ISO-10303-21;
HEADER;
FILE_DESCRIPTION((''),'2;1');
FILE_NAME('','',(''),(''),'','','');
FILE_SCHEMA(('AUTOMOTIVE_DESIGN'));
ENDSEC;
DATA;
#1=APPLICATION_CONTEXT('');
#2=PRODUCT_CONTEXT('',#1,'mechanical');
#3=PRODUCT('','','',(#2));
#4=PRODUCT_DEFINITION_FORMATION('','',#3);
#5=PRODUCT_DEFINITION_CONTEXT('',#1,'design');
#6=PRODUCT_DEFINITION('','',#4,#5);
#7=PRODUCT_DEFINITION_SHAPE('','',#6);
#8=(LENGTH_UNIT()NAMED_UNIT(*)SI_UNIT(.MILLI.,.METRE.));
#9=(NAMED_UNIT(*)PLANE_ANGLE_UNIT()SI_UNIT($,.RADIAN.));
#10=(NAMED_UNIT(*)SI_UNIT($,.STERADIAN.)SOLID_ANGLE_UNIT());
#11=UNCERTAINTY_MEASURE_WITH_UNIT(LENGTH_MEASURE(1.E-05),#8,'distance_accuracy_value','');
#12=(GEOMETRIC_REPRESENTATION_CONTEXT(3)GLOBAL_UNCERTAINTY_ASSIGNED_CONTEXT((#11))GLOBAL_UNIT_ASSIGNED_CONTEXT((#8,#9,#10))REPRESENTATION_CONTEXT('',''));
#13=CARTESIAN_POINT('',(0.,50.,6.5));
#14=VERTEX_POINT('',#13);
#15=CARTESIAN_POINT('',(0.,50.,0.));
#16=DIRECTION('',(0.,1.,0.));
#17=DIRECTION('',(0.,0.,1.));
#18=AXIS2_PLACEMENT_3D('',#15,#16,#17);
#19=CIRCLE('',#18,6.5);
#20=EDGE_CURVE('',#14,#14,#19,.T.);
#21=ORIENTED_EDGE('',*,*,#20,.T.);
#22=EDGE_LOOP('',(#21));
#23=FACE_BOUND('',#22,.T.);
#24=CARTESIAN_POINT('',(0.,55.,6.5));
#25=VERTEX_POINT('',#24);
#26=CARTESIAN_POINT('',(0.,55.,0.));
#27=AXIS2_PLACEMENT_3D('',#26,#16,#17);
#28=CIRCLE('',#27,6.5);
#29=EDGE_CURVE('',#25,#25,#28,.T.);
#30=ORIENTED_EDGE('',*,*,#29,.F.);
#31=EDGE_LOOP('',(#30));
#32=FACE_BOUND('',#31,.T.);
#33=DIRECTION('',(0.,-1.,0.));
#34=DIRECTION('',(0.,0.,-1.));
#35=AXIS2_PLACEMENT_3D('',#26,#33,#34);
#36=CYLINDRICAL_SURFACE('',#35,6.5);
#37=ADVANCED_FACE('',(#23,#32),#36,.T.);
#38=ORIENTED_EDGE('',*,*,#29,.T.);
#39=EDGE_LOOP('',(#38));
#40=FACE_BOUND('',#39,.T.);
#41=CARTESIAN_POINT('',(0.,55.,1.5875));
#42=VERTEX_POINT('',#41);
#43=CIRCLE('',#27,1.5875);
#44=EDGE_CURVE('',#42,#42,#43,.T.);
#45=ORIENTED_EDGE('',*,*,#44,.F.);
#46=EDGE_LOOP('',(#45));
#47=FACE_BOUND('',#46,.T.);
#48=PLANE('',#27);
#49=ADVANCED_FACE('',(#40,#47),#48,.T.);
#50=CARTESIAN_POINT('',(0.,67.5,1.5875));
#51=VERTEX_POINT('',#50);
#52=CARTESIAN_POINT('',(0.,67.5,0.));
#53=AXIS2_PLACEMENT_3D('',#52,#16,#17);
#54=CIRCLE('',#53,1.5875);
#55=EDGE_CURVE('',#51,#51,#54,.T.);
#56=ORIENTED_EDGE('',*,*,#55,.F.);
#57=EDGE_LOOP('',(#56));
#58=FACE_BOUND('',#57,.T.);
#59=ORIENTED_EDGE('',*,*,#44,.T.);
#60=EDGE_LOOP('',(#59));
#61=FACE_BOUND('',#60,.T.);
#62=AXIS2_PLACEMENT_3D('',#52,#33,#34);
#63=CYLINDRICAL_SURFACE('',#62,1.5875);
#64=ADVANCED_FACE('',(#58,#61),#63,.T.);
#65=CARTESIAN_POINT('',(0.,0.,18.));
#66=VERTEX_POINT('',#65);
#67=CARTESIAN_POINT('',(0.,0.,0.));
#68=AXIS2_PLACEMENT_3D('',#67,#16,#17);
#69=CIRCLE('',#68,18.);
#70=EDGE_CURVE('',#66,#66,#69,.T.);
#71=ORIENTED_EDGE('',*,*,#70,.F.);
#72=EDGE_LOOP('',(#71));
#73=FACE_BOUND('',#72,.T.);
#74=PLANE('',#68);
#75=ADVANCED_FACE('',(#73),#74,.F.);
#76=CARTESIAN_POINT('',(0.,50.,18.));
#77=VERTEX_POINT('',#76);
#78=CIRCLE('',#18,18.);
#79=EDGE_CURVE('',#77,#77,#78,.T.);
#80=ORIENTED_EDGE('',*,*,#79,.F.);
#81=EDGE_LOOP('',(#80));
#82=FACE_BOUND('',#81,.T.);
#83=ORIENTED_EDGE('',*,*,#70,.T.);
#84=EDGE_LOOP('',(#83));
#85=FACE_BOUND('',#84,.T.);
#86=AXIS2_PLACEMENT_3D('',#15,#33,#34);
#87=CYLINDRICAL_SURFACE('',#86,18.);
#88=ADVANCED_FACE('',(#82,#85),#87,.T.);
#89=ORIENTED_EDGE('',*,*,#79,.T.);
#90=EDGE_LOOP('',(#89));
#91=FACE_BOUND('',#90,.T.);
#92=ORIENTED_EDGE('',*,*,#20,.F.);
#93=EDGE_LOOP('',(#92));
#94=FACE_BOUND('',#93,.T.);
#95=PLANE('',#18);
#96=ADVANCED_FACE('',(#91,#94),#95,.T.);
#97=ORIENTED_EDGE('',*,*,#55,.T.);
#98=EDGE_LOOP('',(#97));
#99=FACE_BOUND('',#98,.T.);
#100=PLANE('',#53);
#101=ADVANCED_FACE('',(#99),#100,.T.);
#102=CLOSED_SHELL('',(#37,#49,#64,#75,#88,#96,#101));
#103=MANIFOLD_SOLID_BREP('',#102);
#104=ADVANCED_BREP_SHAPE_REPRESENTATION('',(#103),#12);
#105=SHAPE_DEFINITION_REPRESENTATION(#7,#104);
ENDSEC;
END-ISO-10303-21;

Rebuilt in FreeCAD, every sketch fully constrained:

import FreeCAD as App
import Part
import Sketcher
from FreeCAD import Vector

doc = App.newDocument("Part")
body = doc.addObject("PartDesign::Body", "Body")

# Sketch on XZ plane
sketch1 = body.newObject("Sketcher::SketchObject", "Sketch")
sketch1.AttachmentSupport = (doc.getObject("XZ_Plane"), [""])
sketch1.MapMode = "FlatFace"
sketch1.addGeometry(Part.Circle(Vector(0, 0, 0), Vector(0, 0, 1), 18), False)
sketch1.addConstraint(Sketcher.Constraint("Coincident", 0, 3, -1, 1))
sketch1.addConstraint(Sketcher.Constraint("Diameter", 0, 36.0))
pad1 = body.newObject("PartDesign::Pad", "Pad")
pad1.Profile = sketch1
pad1.Length = 50
pad1.Reversed = True

# Sketch on XZ plane
sketch2 = body.newObject("Sketcher::SketchObject", "Sketch001")
sketch2.AttachmentSupport = (doc.getObject("XZ_Plane"), [""])
sketch2.MapMode = "FlatFace"
sketch2.AttachmentOffset = App.Placement(Vector(0, 0, -50), App.Rotation())
sketch2.addGeometry(Part.Circle(Vector(0, 0, 0), Vector(0, 0, 1), 6), False)
sketch2.addConstraint(Sketcher.Constraint("Coincident", 0, 3, -1, 1))
sketch2.addConstraint(Sketcher.Constraint("Diameter", 0, 13.0))
pad2 = body.newObject("PartDesign::Pad", "Pad001")
pad2.Profile = sketch2
pad2.Length = 5
pad2.Reversed = True

# Sketch on XZ plane
sketch3 = body.newObject("Sketcher::SketchObject", "Sketch002")
sketch3.AttachmentSupport = (doc.getObject("XZ_Plane"), [""])
sketch3.MapMode = "FlatFace"
sketch3.AttachmentOffset = App.Placement(Vector(0, 0, -55), App.Rotation())
sketch3.addGeometry(Part.Circle(Vector(0, 0, 0), Vector(0, 0, 1), 1.6), False)
sketch3.addConstraint(Sketcher.Constraint("Coincident", 0, 3, -1, 1))
sketch3.addConstraint(Sketcher.Constraint("Diameter", 0, 3.175))
pad3 = body.newObject("PartDesign::Pad", "Pad002")
pad3.Profile = sketch3
pad3.Length = 12.5
pad3.Reversed = True

doc.recompute()
